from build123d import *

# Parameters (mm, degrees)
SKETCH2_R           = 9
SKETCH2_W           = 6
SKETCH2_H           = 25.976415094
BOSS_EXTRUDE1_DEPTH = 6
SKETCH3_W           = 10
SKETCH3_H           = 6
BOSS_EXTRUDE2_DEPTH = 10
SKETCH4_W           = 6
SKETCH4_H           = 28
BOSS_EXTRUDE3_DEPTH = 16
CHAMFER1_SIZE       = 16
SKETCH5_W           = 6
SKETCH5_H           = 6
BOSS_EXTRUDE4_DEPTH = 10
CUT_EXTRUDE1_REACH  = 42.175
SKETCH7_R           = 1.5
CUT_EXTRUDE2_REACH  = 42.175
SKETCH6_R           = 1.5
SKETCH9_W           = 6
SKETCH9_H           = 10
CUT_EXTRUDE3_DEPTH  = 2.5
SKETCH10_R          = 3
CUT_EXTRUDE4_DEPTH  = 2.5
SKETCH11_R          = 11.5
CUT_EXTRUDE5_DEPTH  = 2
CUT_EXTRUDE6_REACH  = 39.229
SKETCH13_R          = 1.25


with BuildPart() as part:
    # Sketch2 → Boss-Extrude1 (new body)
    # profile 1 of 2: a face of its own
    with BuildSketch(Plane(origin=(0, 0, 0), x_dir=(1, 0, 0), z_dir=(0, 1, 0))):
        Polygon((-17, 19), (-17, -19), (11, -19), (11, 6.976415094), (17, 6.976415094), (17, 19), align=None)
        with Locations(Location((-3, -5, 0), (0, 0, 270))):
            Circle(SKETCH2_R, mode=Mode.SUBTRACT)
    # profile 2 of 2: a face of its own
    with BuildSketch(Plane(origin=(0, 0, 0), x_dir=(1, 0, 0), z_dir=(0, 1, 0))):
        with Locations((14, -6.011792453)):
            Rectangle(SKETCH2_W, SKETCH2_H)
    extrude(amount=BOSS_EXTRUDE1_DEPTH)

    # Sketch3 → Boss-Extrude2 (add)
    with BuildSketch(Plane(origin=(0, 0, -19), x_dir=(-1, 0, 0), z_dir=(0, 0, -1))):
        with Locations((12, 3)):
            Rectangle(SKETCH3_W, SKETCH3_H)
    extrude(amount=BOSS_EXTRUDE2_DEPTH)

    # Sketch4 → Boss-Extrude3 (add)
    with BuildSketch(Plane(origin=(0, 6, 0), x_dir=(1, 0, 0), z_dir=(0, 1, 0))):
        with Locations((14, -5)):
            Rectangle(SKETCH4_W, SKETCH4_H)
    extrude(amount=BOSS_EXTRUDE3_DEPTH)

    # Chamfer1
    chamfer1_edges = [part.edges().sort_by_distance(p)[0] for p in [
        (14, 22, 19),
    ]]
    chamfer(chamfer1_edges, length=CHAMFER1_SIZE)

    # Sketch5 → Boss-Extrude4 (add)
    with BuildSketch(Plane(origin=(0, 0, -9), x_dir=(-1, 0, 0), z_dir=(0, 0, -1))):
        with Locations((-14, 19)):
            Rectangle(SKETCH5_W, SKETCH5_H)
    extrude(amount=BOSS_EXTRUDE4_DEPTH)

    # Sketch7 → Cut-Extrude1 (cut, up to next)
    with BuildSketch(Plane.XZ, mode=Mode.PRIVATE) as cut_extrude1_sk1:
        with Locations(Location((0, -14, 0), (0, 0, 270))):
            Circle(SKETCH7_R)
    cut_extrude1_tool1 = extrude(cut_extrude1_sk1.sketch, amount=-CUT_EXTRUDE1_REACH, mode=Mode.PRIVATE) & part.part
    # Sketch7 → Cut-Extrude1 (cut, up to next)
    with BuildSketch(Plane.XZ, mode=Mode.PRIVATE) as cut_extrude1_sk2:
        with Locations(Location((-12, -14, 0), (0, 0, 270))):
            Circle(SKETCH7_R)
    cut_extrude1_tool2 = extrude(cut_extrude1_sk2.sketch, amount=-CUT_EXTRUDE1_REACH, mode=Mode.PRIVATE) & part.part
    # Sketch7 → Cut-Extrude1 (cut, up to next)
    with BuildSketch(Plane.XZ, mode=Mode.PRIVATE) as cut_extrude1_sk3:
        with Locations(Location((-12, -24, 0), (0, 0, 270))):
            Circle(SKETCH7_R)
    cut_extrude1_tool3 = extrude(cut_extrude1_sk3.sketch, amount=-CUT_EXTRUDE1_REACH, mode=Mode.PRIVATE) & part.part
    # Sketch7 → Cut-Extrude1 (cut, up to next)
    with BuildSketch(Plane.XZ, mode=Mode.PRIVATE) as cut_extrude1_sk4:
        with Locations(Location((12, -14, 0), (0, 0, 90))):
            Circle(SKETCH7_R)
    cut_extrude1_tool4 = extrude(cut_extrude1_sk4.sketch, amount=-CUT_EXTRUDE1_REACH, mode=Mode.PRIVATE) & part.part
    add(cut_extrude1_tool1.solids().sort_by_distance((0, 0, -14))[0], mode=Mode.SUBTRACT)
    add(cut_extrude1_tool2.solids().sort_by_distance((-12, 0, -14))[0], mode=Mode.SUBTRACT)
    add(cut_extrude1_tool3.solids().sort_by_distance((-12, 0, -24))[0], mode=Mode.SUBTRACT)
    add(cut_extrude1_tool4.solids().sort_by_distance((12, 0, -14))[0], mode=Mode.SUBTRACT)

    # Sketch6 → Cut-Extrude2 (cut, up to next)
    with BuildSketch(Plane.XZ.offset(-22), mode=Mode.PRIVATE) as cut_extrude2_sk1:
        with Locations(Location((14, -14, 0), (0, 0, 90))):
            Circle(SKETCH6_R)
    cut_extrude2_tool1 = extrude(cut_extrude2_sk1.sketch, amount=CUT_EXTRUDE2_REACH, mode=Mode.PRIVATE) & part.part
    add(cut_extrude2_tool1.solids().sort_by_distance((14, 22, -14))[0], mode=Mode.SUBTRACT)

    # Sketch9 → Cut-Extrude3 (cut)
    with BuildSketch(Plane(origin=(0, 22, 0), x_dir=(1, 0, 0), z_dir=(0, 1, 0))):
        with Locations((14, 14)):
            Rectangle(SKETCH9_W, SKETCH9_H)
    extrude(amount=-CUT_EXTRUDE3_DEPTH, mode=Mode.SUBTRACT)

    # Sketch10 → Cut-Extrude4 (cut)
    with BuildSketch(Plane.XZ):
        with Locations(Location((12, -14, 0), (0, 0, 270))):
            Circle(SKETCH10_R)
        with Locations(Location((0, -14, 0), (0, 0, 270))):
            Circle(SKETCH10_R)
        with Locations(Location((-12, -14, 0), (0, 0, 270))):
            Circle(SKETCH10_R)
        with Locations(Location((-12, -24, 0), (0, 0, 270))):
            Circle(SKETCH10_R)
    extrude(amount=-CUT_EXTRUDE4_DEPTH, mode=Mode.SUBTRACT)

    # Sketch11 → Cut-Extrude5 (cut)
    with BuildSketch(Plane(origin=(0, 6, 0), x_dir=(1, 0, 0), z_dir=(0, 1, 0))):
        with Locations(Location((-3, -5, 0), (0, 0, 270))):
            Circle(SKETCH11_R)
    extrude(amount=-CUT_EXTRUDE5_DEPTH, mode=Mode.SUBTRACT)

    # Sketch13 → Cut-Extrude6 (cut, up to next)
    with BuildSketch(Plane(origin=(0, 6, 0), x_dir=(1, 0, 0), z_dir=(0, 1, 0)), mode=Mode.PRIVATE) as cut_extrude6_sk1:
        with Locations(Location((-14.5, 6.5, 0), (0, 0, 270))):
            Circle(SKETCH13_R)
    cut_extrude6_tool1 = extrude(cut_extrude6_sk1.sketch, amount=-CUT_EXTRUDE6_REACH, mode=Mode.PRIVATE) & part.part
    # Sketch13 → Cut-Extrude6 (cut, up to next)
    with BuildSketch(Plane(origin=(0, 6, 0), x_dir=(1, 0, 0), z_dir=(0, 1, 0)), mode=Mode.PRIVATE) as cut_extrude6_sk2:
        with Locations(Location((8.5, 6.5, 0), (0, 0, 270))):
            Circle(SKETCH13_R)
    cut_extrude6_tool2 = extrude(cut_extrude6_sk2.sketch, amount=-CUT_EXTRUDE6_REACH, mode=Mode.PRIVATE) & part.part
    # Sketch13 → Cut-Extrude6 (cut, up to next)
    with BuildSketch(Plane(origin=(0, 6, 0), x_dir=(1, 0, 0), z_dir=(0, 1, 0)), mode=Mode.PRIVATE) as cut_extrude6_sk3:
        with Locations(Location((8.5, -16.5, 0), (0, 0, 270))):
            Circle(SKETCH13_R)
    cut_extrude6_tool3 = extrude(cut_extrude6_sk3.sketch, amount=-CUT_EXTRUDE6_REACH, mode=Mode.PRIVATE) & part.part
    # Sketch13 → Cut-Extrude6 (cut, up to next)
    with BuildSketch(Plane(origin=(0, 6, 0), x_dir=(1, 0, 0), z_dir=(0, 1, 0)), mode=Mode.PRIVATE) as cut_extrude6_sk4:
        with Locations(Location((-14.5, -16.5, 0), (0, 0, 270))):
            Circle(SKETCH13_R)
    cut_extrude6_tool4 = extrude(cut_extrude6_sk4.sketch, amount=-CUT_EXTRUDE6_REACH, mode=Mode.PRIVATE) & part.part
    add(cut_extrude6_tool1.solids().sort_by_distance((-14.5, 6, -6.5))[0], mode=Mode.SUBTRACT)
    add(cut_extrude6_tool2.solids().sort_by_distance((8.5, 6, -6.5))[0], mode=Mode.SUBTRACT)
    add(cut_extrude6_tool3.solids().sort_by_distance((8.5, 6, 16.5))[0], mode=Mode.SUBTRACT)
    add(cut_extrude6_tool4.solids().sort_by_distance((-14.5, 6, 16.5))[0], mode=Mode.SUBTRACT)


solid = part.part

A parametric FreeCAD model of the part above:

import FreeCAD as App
import Part
import Sketcher
from FreeCAD import Vector
Q = App.Units.Quantity


def edges_at(feature, points):
    """Names of the edges that pass closest to the given points."""
    edges = feature.Shape.Edges
    near = lambda p: min(range(len(edges)), key=lambda i: edges[i].distToShape(Part.Vertex(*p))[0])
    return sorted({f"Edge{near(p) + 1}" for p in points})


def add_polygon(sketch, points):
    """Adds a closed chain of lines whose ends are joined by coincident constraints."""
    first, n = sketch.GeometryCount, len(points)
    for a, b in zip(points, points[1:] + points[:1]):
        sketch.addGeometry(Part.LineSegment(App.Vector(*a, 0), App.Vector(*b, 0)), False)
    for i in range(n):
        sketch.addConstraint(Sketcher.Constraint("Coincident", first + i, 2, first + (i + 1) % n, 1))

doc = App.newDocument("Part")
params = doc.addObject("Spreadsheet::Sheet", "Params")
for row, (alias, value) in enumerate([
    ("sketch1_diameter", "18 mm"),
    ("sketch1_width", "34 mm"),
    ("sketch1_height", "38 mm"),
    ("pad1_length", "6 mm"),
    ("sketch2_width", "10 mm"),
    ("sketch2_height", "6 mm"),
    ("pad2_length", "10 mm"),
    ("sketch3_width", "6 mm"),
    ("sketch3_height", "28 mm"),
    ("pad3_length", "16 mm"),
    ("chamfer_size", "16 mm"),
    ("sketch4_width", "6 mm"),
    ("pad4_length", "10 mm"),
    ("sketch5_diameter", "3 mm"),
    ("sketch6_diameter", "3 mm"),
    ("sketch7_diameter", "3 mm"),
    ("sketch8_diameter", "3 mm"),
    ("sketch9_diameter", "3 mm"),
    ("sketch10_width", "6 mm"),
    ("sketch10_height", "10 mm"),
    ("pocket6_length", "2.5 mm"),
    ("sketch11_diameter", "6 mm"),
    ("pocket7_length", "2.5 mm"),
    ("sketch12_diameter", "23 mm"),
    ("pocket8_length", "2 mm"),
    ("sketch13_diameter", "2.5 mm"),
    ("sketch14_diameter", "2.5 mm"),
    ("sketch15_diameter", "2.5 mm"),
    ("sketch16_diameter", "2.5 mm"),
], start=1):
    params.set(f"A{row}", alias)
    params.set(f"B{row}", "=" + value)
    params.setAlias(f"B{row}", alias)

body = doc.addObject("PartDesign::Body", "Body")

# Sketch on XZ plane
sketch1 = body.newObject("Sketcher::SketchObject", "Sketch")
sketch1.AttachmentSupport = (doc.getObject("XZ_Plane"), [""])
sketch1.MapMode = "FlatFace"
add_polygon(sketch1, [(-17, -19), (-17, 19), (17, 19), (17, -19)])  # lines 0-3
sketch1.addGeometry(Part.Circle(Vector(-3, 5, 0), Vector(0, 0, 1), 9), False)  # 4
sketch1.addConstraint([
    Sketcher.Constraint("Vertical", 0),
    Sketcher.Constraint("Horizontal", 1),
    Sketcher.Constraint("Vertical", 2),
    Sketcher.Constraint("Horizontal", 3),
    Sketcher.Constraint("Symmetric", 0, 2, 2, 2, -1, 1),
    Sketcher.Constraint("Diameter", 4, Q("18 mm")),
    Sketcher.Constraint("DistanceX", 1, 1, 1, 2, Q("34 mm")),
    Sketcher.Constraint("DistanceY", 0, 1, 0, 2, Q("38 mm")),
    Sketcher.Constraint("DistanceX", 4, 3, -1, 1, Q("3 mm")),
    Sketcher.Constraint("DistanceY", -1, 1, 4, 3, Q("5 mm")),
])
sketch1.setExpression("Constraints[9]", "Params.sketch1_diameter")
sketch1.setExpression("Constraints[10]", "Params.sketch1_width")
sketch1.setExpression("Constraints[11]", "Params.sketch1_height")
pad1 = body.newObject("PartDesign::Pad", "Pad")
pad1.Profile = sketch1
pad1.setExpression("Length", "Params.pad1_length")
pad1.Reversed = True

# Sketch on XY plane
sketch2 = body.newObject("Sketcher::SketchObject", "Sketch001")
sketch2.AttachmentSupport = (doc.getObject("XY_Plane"), [""])
sketch2.MapMode = "FlatFace"
sketch2.AttachmentOffset = App.Placement(Vector(0, 0, -19), App.Rotation())
add_polygon(sketch2, [(-7, 6), (-7, 0), (-17, 0), (-17, 6)])  # lines 0-3
sketch2.addConstraint([
    Sketcher.Constraint("Vertical", 0),
    Sketcher.Constraint("Horizontal", 1),
    Sketcher.Constraint("Vertical", 2),
    Sketcher.Constraint("Horizontal", 3),
    Sketcher.Constraint("PointOnObject", 0, 2, -1),
    Sketcher.Constraint("DistanceX", 1, 2, 1, 1, Q("10 mm")),
    Sketcher.Constraint("DistanceY", 0, 2, 0, 1, Q("6 mm")),
    Sketcher.Constraint("DistanceX", 0, 2, -1, 1, Q("7 mm")),
])
sketch2.setExpression("Constraints[9]", "Params.sketch2_width")
sketch2.setExpression("Constraints[10]", "Params.sketch2_height")
pad2 = body.newObject("PartDesign::Pad", "Pad001")
pad2.Profile = sketch2
pad2.setExpression("Length", "Params.pad2_length")
pad2.Reversed = True

# Sketch on XZ plane
sketch3 = body.newObject("Sketcher::SketchObject", "Sketch002")
sketch3.AttachmentSupport = (doc.getObject("XZ_Plane"), [""])
sketch3.MapMode = "FlatFace"
sketch3.AttachmentOffset = App.Placement(Vector(0, 0, -6), App.Rotation())
add_polygon(sketch3, [(11, -9), (11, 19), (17, 19), (17, -9)])  # lines 0-3
sketch3.addConstraint([
    Sketcher.Constraint("Vertical", 0),
    Sketcher.Constraint("Horizontal", 1),
    Sketcher.Constraint("Vertical", 2),
    Sketcher.Constraint("Horizontal", 3),
    Sketcher.Constraint("DistanceX", 1, 1, 1, 2, Q("6 mm")),
    Sketcher.Constraint("DistanceY", 0, 1, 0, 2, Q("28 mm")),
    Sketcher.Constraint("DistanceX", -1, 1, 0, 2, Q("11 mm")),
    Sketcher.Constraint("DistanceY", -1, 1, 0, 2, Q("19 mm")),
])
sketch3.setExpression("Constraints[8]", "Params.sketch3_width")
sketch3.setExpression("Constraints[9]", "Params.sketch3_height")
pad3 = body.newObject("PartDesign::Pad", "Pad002")
pad3.Profile = sketch3
pad3.setExpression("Length", "Params.pad3_length")
pad3.Reversed = True
doc.recompute()

chamfer = body.newObject("PartDesign::Chamfer", "Chamfer")
chamfer.Base = (pad3, edges_at(pad3, [(14, 22, 19)]))
chamfer.setExpression("Size", "Params.chamfer_size")

# Sketch on XY plane
sketch4 = body.newObject("Sketcher::SketchObject", "Sketch003")
sketch4.AttachmentSupport = (doc.getObject("XY_Plane"), [""])
sketch4.MapMode = "FlatFace"
sketch4.AttachmentOffset = App.Placement(Vector(0, 0, -9), App.Rotation())
add_polygon(sketch4, [(17, 22), (17, 16), (11, 16), (11, 22)])  # lines 0-3
sketch4.addConstraint([
    Sketcher.Constraint("Vertical", 0),
    Sketcher.Constraint("Horizontal", 1),
    Sketcher.Constraint("Vertical", 2),
    Sketcher.Constraint("Horizontal", 3),
    Sketcher.Constraint("Equal", 3, 0),
    Sketcher.Constraint("DistanceX", 1, 2, 1, 1, Q("6 mm")),
    Sketcher.Constraint("DistanceX", -1, 1, 0, 2, Q("17 mm")),
    Sketcher.Constraint("DistanceY", -1, 1, 0, 2, Q("16 mm")),
])
sketch4.setExpression("Constraints[9]", "Params.sketch4_width")
pad4 = body.newObject("PartDesign::Pad", "Pad003")
pad4.Profile = sketch4
pad4.setExpression("Length", "Params.pad4_length")
pad4.Reversed = True

# Sketch on XZ plane
sketch5 = body.newObject("Sketcher::SketchObject", "Sketch004")
sketch5.AttachmentSupport = (doc.getObject("XZ_Plane"), [""])
sketch5.MapMode = "FlatFace"
sketch5.addGeometry(Part.Circle(Vector(0, -14, 0), Vector(0, 0, 1), 1.5), False)
sketch5.addConstraint([
    Sketcher.Constraint("PointOnObject", 0, 3, -2),
    Sketcher.Constraint("Diameter", 0, Q("3 mm")),
    Sketcher.Constraint("DistanceY", 0, 3, -1, 1, Q("14 mm")),
])
sketch5.setExpression("Constraints[1]", "Params.sketch5_diameter")
pocket1 = body.newObject("PartDesign::Pocket", "Pocket")
pocket1.Profile = sketch5
pocket1.Type = "UpToFirst"

# Sketch on XZ plane
sketch6 = body.newObject("Sketcher::SketchObject", "Sketch005")
sketch6.AttachmentSupport = (doc.getObject("XZ_Plane"), [""])
sketch6.MapMode = "FlatFace"
sketch6.addGeometry(Part.Circle(Vector(-12, -14, 0), Vector(0, 0, 1), 1.5), False)
sketch6.addConstraint([
    Sketcher.Constraint("Diameter", 0, Q("3 mm")),
    Sketcher.Constraint("DistanceX", 0, 3, -1, 1, Q("12 mm")),
    Sketcher.Constraint("DistanceY", 0, 3, -1, 1, Q("14 mm")),
])
sketch6.setExpression("Constraints[0]", "Params.sketch6_diameter")
pocket2 = body.newObject("PartDesign::Pocket", "Pocket001")
pocket2.Profile = sketch6
pocket2.Type = "UpToFirst"

# Sketch on XZ plane
sketch7 = body.newObject("Sketcher::SketchObject", "Sketch006")
sketch7.AttachmentSupport = (doc.getObject("XZ_Plane"), [""])
sketch7.MapMode = "FlatFace"
sketch7.addGeometry(Part.Circle(Vector(-12, -24, 0), Vector(0, 0, 1), 1.5), False)
sketch7.addConstraint([
    Sketcher.Constraint("Diameter", 0, Q("3 mm")),
    Sketcher.Constraint("DistanceX", 0, 3, -1, 1, Q("12 mm")),
    Sketcher.Constraint("DistanceY", 0, 3, -1, 1, Q("24 mm")),
])
sketch7.setExpression("Constraints[0]", "Params.sketch7_diameter")
pocket3 = body.newObject("PartDesign::Pocket", "Pocket002")
pocket3.Profile = sketch7
pocket3.Type = "UpToFirst"

# Sketch on XZ plane
sketch8 = body.newObject("Sketcher::SketchObject", "Sketch007")
sketch8.AttachmentSupport = (doc.getObject("XZ_Plane"), [""])
sketch8.MapMode = "FlatFace"
sketch8.addGeometry(Part.Circle(Vector(12, -14, 0), Vector(0, 0, 1), 1.5), False)
sketch8.addConstraint([
    Sketcher.Constraint("Diameter", 0, Q("3 mm")),
    Sketcher.Constraint("DistanceX", -1, 1, 0, 3, Q("12 mm")),
    Sketcher.Constraint("DistanceY", 0, 3, -1, 1, Q("14 mm")),
])
sketch8.setExpression("Constraints[0]", "Params.sketch8_diameter")
pocket4 = body.newObject("PartDesign::Pocket", "Pocket003")
pocket4.Profile = sketch8
pocket4.Type = "UpToFirst"

# Sketch on XZ plane
sketch9 = body.newObject("Sketcher::SketchObject", "Sketch008")
sketch9.AttachmentSupport = (doc.getObject("XZ_Plane"), [""])
sketch9.MapMode = "FlatFace"
sketch9.AttachmentOffset = App.Placement(Vector(0, 0, -22), App.Rotation())
sketch9.addGeometry(Part.Circle(Vector(14, -14, 0), Vector(0, 0, 1), 1.5), False)
sketch9.addConstraint([
    Sketcher.Constraint("Diameter", 0, Q("3 mm")),
    Sketcher.Constraint("DistanceX", -1, 1, 0, 3, Q("14 mm")),
    Sketcher.Constraint("DistanceY", 0, 3, -1, 1, Q("14 mm")),
])
sketch9.setExpression("Constraints[0]", "Params.sketch9_diameter")
pocket5 = body.newObject("PartDesign::Pocket", "Pocket004")
pocket5.Profile = sketch9
pocket5.Type = "UpToFirst"
pocket5.Reversed = True

# Sketch on XZ plane
sketch10 = body.newObject("Sketcher::SketchObject", "Sketch009")
sketch10.AttachmentSupport = (doc.getObject("XZ_Plane"), [""])
sketch10.MapMode = "FlatFace"
sketch10.AttachmentOffset = App.Placement(Vector(0, 0, -22), App.Rotation())
add_polygon(sketch10, [(11, -19), (11, -9), (17, -9), (17, -19)])  # lines 0-3
sketch10.addConstraint([
    Sketcher.Constraint("Vertical", 0),
    Sketcher.Constraint("Horizontal", 1),
    Sketcher.Constraint("Vertical", 2),
    Sketcher.Constraint("Horizontal", 3),
    Sketcher.Constraint("DistanceX", 1, 1, 1, 2, Q("6 mm")),
    Sketcher.Constraint("DistanceY", 0, 1, 0, 2, Q("10 mm")),
    Sketcher.Constraint("DistanceX", -1, 1, 0, 2, Q("11 mm")),
    Sketcher.Constraint("DistanceY", 0, 2, -1, 1, Q("9 mm")),
])
sketch10.setExpression("Constraints[8]", "Params.sketch10_width")
sketch10.setExpression("Constraints[9]", "Params.sketch10_height")
pocket6 = body.newObject("PartDesign::Pocket", "Pocket005")
pocket6.Profile = sketch10
pocket6.setExpression("Length", "Params.pocket6_length")
pocket6.Reversed = True

# Sketch on XZ plane
sketch11 = body.newObject("Sketcher::SketchObject", "Sketch010")
sketch11.AttachmentSupport = (doc.getObject("XZ_Plane"), [""])
sketch11.MapMode = "FlatFace"
sketch11.addGeometry([
    Part.Circle(Vector(12, -14, 0), Vector(0, 0, 1), 3),
    Part.Circle(Vector(0, -14, 0), Vector(0, 0, 1), 3),
    Part.Circle(Vector(-12, -14, 0), Vector(0, 0, 1), 3),
    Part.Circle(Vector(-12, -24, 0), Vector(0, 0, 1), 3),
], False)
sketch11.addConstraint([
    Sketcher.Constraint("Equal", 0, 1),
    Sketcher.Constraint("Equal", 1, 2),
    Sketcher.Constraint("Equal", 2, 3),
    Sketcher.Constraint("Symmetric", 0, 3, 2, 3, -2),
    Sketcher.Constraint("PointOnObject", 1, 3, -2),
    Sketcher.Constraint("Horizontal", 0, 3, 1, 3),
    Sketcher.Constraint("Vertical", 2, 3, 3, 3),
    Sketcher.Constraint("Diameter", 0, Q("6 mm")),
    Sketcher.Constraint("DistanceX", -1, 1, 0, 3, Q("12 mm")),
    Sketcher.Constraint("DistanceY", 0, 3, -1, 1, Q("14 mm")),
    Sketcher.Constraint("DistanceY", 3, 3, -1, 1, Q("24 mm")),
])
sketch11.setExpression("Constraints[7]", "Params.sketch11_diameter")
pocket7 = body.newObject("PartDesign::Pocket", "Pocket006")
pocket7.Profile = sketch11
pocket7.setExpression("Length", "Params.pocket7_length")

# Sketch on XZ plane
sketch12 = body.newObject("Sketcher::SketchObject", "Sketch011")
sketch12.AttachmentSupport = (doc.getObject("XZ_Plane"), [""])
sketch12.MapMode = "FlatFace"
sketch12.AttachmentOffset = App.Placement(Vector(0, 0, -6), App.Rotation())
sketch12.addGeometry(Part.Circle(Vector(-3, 5, 0), Vector(0, 0, 1), 11.5), False)
sketch12.addConstraint([
    Sketcher.Constraint("Diameter", 0, Q("23 mm")),
    Sketcher.Constraint("DistanceX", 0, 3, -1, 1, Q("3 mm")),
    Sketcher.Constraint("DistanceY", -1, 1, 0, 3, Q("5 mm")),
])
sketch12.setExpression("Constraints[0]", "Params.sketch12_diameter")
pocket8 = body.newObject("PartDesign::Pocket", "Pocket007")
pocket8.Profile = sketch12
pocket8.setExpression("Length", "Params.pocket8_length")
pocket8.Reversed = True

# Sketch on XZ plane
sketch13 = body.newObject("Sketcher::SketchObject", "Sketch012")
sketch13.AttachmentSupport = (doc.getObject("XZ_Plane"), [""])
sketch13.MapMode = "FlatFace"
sketch13.AttachmentOffset = App.Placement(Vector(0, 0, -6), App.Rotation())
sketch13.addGeometry(Part.Circle(Vector(-14.5, -6.5, 0), Vector(0, 0, 1), 1.25), False)
sketch13.addConstraint([
    Sketcher.Constraint("Diameter", 0, Q("2.5 mm")),
    Sketcher.Constraint("DistanceX", 0, 3, -1, 1, Q("14.5 mm")),
    Sketcher.Constraint("DistanceY", 0, 3, -1, 1, Q("6.5 mm")),
])
sketch13.setExpression("Constraints[0]", "Params.sketch13_diameter")
pocket9 = body.newObject("PartDesign::Pocket", "Pocket008")
pocket9.Profile = sketch13
pocket9.Type = "UpToFirst"
pocket9.Reversed = True

# Sketch on XZ plane
sketch14 = body.newObject("Sketcher::SketchObject", "Sketch013")
sketch14.AttachmentSupport = (doc.getObject("XZ_Plane"), [""])
sketch14.MapMode = "FlatFace"
sketch14.AttachmentOffset = App.Placement(Vector(0, 0, -6), App.Rotation())
sketch14.addGeometry(Part.Circle(Vector(8.5, -6.5, 0), Vector(0, 0, 1), 1.25), False)
sketch14.addConstraint([
    Sketcher.Constraint("Diameter", 0, Q("2.5 mm")),
    Sketcher.Constraint("DistanceX", -1, 1, 0, 3, Q("8.5 mm")),
    Sketcher.Constraint("DistanceY", 0, 3, -1, 1, Q("6.5 mm")),
])
sketch14.setExpression("Constraints[0]", "Params.sketch14_diameter")
pocket10 = body.newObject("PartDesign::Pocket", "Pocket009")
pocket10.Profile = sketch14
pocket10.Type = "UpToFirst"
pocket10.Reversed = True

# Sketch on XZ plane
sketch15 = body.newObject("Sketcher::SketchObject", "Sketch014")
sketch15.AttachmentSupport = (doc.getObject("XZ_Plane"), [""])
sketch15.MapMode = "FlatFace"
sketch15.AttachmentOffset = App.Placement(Vector(0, 0, -6), App.Rotation())
sketch15.addGeometry(Part.Circle(Vector(8.5, 16.5, 0), Vector(0, 0, 1), 1.25), False)
sketch15.addConstraint([
    Sketcher.Constraint("Diameter", 0, Q("2.5 mm")),
    Sketcher.Constraint("DistanceX", -1, 1, 0, 3, Q("8.5 mm")),
    Sketcher.Constraint("DistanceY", -1, 1, 0, 3, Q("16.5 mm")),
])
sketch15.setExpression("Constraints[0]", "Params.sketch15_diameter")
pocket11 = body.newObject("PartDesign::Pocket", "Pocket010")
pocket11.Profile = sketch15
pocket11.Type = "UpToFirst"
pocket11.Reversed = True

# Sketch on XZ plane
sketch16 = body.newObject("Sketcher::SketchObject", "Sketch015")
sketch16.AttachmentSupport = (doc.getObject("XZ_Plane"), [""])
sketch16.MapMode = "FlatFace"
sketch16.AttachmentOffset = App.Placement(Vector(0, 0, -6), App.Rotation())
sketch16.addGeometry(Part.Circle(Vector(-14.5, 16.5, 0), Vector(0, 0, 1), 1.25), False)
sketch16.addConstraint([
    Sketcher.Constraint("Diameter", 0, Q("2.5 mm")),
    Sketcher.Constraint("DistanceX", 0, 3, -1, 1, Q("14.5 mm")),
    Sketcher.Constraint("DistanceY", -1, 1, 0, 3, Q("16.5 mm")),
])
sketch16.setExpression("Constraints[0]", "Params.sketch16_diameter")
pocket12 = body.newObject("PartDesign::Pocket", "Pocket011")
pocket12.Profile = sketch16
pocket12.Type = "UpToFirst"
pocket12.Reversed = True

doc.recompute()
